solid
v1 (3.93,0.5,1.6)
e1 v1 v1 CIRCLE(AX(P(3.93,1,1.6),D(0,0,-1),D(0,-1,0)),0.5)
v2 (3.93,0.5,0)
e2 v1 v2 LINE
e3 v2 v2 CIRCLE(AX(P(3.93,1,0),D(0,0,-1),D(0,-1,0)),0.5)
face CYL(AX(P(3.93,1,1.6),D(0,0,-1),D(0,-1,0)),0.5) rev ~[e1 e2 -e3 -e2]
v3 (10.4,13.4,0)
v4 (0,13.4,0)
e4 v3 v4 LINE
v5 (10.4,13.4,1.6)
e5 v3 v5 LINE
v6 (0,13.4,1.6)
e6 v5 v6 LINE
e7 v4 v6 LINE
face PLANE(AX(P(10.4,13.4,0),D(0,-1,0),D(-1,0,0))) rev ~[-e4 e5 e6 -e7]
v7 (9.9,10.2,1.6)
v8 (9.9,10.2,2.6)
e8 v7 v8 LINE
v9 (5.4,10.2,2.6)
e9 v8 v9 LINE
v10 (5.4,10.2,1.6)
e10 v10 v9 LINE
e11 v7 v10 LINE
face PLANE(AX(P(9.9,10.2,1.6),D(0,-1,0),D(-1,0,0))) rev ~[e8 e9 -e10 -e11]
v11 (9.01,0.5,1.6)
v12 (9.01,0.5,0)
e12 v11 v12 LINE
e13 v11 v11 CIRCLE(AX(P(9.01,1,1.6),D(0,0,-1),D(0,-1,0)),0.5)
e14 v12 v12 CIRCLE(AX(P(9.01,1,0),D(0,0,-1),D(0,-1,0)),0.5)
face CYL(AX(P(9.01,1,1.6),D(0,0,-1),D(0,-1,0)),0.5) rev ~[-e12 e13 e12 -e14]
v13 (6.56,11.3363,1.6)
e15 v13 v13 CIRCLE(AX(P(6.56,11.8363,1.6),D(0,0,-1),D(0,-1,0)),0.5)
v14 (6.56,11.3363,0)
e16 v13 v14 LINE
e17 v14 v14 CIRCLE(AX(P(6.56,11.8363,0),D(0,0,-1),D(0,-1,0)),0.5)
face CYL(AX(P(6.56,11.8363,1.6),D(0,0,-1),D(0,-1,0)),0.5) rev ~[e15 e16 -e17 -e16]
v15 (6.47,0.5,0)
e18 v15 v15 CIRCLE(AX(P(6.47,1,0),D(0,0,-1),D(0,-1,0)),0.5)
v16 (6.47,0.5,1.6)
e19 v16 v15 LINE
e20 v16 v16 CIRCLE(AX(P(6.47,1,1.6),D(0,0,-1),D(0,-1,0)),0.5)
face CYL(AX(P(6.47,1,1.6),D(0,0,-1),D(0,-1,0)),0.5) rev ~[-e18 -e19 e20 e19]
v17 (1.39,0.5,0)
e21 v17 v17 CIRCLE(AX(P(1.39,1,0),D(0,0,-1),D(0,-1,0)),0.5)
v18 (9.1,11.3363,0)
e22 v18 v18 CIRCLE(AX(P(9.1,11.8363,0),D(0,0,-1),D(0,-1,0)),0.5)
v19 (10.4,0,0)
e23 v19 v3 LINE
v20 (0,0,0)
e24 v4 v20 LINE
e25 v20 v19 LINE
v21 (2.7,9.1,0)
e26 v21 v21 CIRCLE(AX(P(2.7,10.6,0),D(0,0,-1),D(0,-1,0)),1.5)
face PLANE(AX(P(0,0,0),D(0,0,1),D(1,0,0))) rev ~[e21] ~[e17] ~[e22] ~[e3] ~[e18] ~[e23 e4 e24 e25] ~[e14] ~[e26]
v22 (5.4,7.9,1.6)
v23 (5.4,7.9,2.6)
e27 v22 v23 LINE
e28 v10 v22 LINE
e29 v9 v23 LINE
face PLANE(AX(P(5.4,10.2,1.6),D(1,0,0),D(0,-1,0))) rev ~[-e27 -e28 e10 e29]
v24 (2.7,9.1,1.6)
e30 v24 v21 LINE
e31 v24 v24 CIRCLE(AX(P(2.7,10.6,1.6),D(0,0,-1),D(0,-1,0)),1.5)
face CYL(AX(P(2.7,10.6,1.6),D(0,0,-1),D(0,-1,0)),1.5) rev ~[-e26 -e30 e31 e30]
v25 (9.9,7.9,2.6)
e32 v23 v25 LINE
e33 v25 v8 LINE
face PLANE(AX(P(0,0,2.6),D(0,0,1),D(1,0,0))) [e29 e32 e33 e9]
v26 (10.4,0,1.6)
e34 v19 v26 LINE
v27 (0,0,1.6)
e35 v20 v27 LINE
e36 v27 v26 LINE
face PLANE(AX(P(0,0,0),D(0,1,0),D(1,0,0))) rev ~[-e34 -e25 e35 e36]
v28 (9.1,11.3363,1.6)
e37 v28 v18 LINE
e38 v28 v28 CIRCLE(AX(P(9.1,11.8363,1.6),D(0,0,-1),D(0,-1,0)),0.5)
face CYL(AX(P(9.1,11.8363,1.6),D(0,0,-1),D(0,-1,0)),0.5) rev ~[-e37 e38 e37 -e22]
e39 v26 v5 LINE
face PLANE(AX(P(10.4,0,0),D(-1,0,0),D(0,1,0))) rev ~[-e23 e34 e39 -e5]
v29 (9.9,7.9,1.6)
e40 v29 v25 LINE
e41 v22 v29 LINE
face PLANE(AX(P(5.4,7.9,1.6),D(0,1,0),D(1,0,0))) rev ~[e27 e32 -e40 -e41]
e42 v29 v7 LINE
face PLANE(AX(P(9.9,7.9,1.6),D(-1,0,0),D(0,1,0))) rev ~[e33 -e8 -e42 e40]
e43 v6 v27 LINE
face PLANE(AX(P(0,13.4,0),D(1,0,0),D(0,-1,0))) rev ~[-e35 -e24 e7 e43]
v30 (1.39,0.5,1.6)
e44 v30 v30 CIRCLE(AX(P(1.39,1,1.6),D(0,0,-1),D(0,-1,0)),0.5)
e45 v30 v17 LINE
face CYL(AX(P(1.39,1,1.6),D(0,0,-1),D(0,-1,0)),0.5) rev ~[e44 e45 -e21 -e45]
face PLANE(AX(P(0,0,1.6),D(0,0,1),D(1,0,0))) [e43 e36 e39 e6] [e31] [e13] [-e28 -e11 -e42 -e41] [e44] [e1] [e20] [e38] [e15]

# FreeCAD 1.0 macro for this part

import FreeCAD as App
import Part
import Sketcher

V = App.Vector


def add_polygon(sketch, points):
    """Adds a closed chain of lines whose ends are joined by coincident constraints."""
    first, n = sketch.GeometryCount, len(points)
    for a, b in zip(points, points[1:] + points[:1]):
        sketch.addGeometry(Part.LineSegment(App.Vector(*a, 0), App.Vector(*b, 0)), False)
    for i in range(n):
        sketch.addConstraint(Sketcher.Constraint("Coincident", first + i, 2, first + (i + 1) % n, 1))

doc = App.newDocument("Part")
params = doc.addObject("Spreadsheet::Sheet", "Params")
for row, (alias, value) in enumerate([
    ("sketch1_width", "10.4 mm"),
    ("sketch1_height", "13.4 mm"),
    ("pad1_length", "1.6 mm"),
    ("sketch2_diameter", "3 mm"),
    ("hole_diameter", "3 mm"),
    ("hole_depth", "1.6 mm"),
    ("sketch3_diameter", "1 mm"),
    ("hole2_diameter", "1 mm"),
    ("sketch4_width", "4.5 mm"),
    ("sketch4_height", "2.3 mm"),
    ("pad2_length", "1 mm"),
], start=1):
    params.set(f"A{row}", alias)
    params.set(f"B{row}", "=" + value)
    params.setAlias(f"B{row}", alias)

body = doc.addObject("PartDesign::Body", "Body")

# Sketch on XY plane
sketch1 = body.newObject("Sketcher::SketchObject", "Sketch")
sketch1.AttachmentSupport = (doc.getObject("XY_Plane"), [""])
sketch1.MapMode = "FlatFace"
add_polygon(sketch1, [(0, 13), (0, 0), (10, 0), (10, 13)])  # lines 0-3
sketch1.addConstraint([
    Sketcher.Constraint("Vertical", 0),
    Sketcher.Constraint("Horizontal", 1),
    Sketcher.Constraint("Vertical", 2),
    Sketcher.Constraint("Horizontal", 3),
    Sketcher.Constraint("Coincident", 0, 2, -1, 1),
    Sketcher.Constraint("DistanceX", 1, 1, 1, 2, 10.4),
    Sketcher.Constraint("DistanceY", 0, 2, 0, 1, 13.4),
])
sketch1.setExpression("Constraints[9]", "Params.sketch1_width")
sketch1.setExpression("Constraints[10]", "Params.sketch1_height")
pad1 = body.newObject("PartDesign::Pad", "Pad")
pad1.Profile = sketch1
pad1.setExpression("Length", "Params.pad1_length")

# Sketch on XY plane
sketch2 = body.newObject("Sketcher::SketchObject", "Sketch001")
sketch2.AttachmentSupport = (doc.getObject("XY_Plane"), [""])
sketch2.MapMode = "FlatFace"
sketch2.AttachmentOffset = App.Placement(V(0, 0, 1.6), App.Rotation())
sketch2.addGeometry(Part.Circle(V(2.7, 10.6, 0), V(0, 0, 1), 1.5), False)
sketch2.addConstraint([
    Sketcher.Constraint("Diameter", 0, 3.0),
    Sketcher.Constraint("DistanceX", -1, 1, 0, 3, 2.7),
    Sketcher.Constraint("DistanceY", -1, 1, 0, 3, 10.6),
])
sketch2.setExpression("Constraints[0]", "Params.sketch2_diameter")
doc.recompute()
hole = body.newObject("PartDesign::Hole", "Hole")
hole.Profile = sketch2
hole.ThreadType = "None"
hole.setExpression("Diameter", "Params.hole_diameter")
hole.DepthType = "Dimension"
hole.setExpression("Depth", "Params.hole_depth")
hole.DrillPoint = "Flat"

# Sketch on XY plane
sketch3 = body.newObject("Sketcher::SketchObject", "Sketch002")
sketch3.AttachmentSupport = (doc.getObject("XY_Plane"), [""])
sketch3.MapMode = "FlatFace"
sketch3.AttachmentOffset = App.Placement(V(0, 0, 1.6), App.Rotation())
sketch3.addGeometry([
    Part.Circle(V(1.4, 1, 0), V(0, 0, 1), 0.5),  # 0
    Part.Circle(V(3.9, 1, 0), V(0, 0, 1), 0.5),  # 1
    Part.Circle(V(6.5, 1, 0), V(0, 0, 1), 0.5),  # 2
    Part.Circle(V(9, 1, 0), V(0, 0, 1), 0.5),  # 3
    Part.Circle(V(6.6, 11.8, 0), V(0, 0, 1), 0.5),  # 4
    Part.Circle(V(9.1, 11.8, 0), V(0, 0, 1), 0.5),  # 5
], False)
sketch3.addConstraint([
    Sketcher.Constraint("Equal", 0, 1),
    Sketcher.Constraint("Equal", 1, 2),
    Sketcher.Constraint("Equal", 2, 3),
    Sketcher.Constraint("Equal", 3, 4),
    Sketcher.Constraint("Equal", 4, 5),
    Sketcher.Constraint("Horizontal", 0, 3, 1, 3),
    Sketcher.Constraint("Horizontal", 1, 3, 2, 3),
    Sketcher.Constraint("Horizontal", 2, 3, 3, 3),
    Sketcher.Constraint("Horizontal", 4, 3, 5, 3),
    Sketcher.Constraint("Diameter", 0, 1.0),
    Sketcher.Constraint("DistanceY", -1, 1, 0, 3, 1.0),
    Sketcher.Constraint("DistanceX", -1, 1, 5, 3, 9.1),
    Sketcher.Constraint("DistanceX", -1, 1, 0, 3, 1.39),
    Sketcher.Constraint("DistanceX", -1, 1, 1, 3, 3.93),
    Sketcher.Constraint("DistanceX", -1, 1, 2, 3, 6.47),
    Sketcher.Constraint("DistanceX", -1, 1, 3, 3, 9.01),
    Sketcher.Constraint("DistanceX", -1, 1, 4, 3, 6.56),
    Sketcher.Constraint("DistanceY", -1, 1, 4, 3, 11.8363),
])
sketch3.setExpression("Constraints[9]", "Params.sketch3_diameter")
doc.recompute()
hole2 = body.newObject("PartDesign::Hole", "Hole001")
hole2.Profile = sketch3
hole2.ThreadType = "None"
hole2.setExpression("Diameter", "Params.hole2_diameter")
hole2.DepthType = "ThroughAll"

# Sketch on XY plane
sketch4 = body.newObject("Sketcher::SketchObject", "Sketch003")
sketch4.AttachmentSupport = (doc.getObject("XY_Plane"), [""])
sketch4.MapMode = "FlatFace"
sketch4.AttachmentOffset = App.Placement(V(0, 0, 1.6), App.Rotation())
add_polygon(sketch4, [(5.4, 10.2), (5.4, 7.9), (9.9, 7.9), (9.9, 10.2)])  # lines 0-3
sketch4.addConstraint([
    Sketcher.Constraint("Vertical", 0),
    Sketcher.Constraint("Horizontal", 1),
    Sketcher.Constraint("Vertical", 2),
    Sketcher.Constraint("Horizontal", 3),
    Sketcher.Constraint("DistanceX", 1, 1, 1, 2, 4.5),
    Sketcher.Constraint("DistanceY", 0, 2, 0, 1, 2.3),
    Sketcher.Constraint("DistanceX", -1, 1, 0, 2, 5.4),
    Sketcher.Constraint("DistanceY", -1, 1, 0, 2, 7.9),
])
sketch4.setExpression("Constraints[8]", "Params.sketch4_width")
sketch4.setExpression("Constraints[9]", "Params.sketch4_height")
pad2 = body.newObject("PartDesign::Pad", "Pad001")
pad2.Profile = sketch4
pad2.setExpression("Length", "Params.pad2_length")

doc.recompute()
